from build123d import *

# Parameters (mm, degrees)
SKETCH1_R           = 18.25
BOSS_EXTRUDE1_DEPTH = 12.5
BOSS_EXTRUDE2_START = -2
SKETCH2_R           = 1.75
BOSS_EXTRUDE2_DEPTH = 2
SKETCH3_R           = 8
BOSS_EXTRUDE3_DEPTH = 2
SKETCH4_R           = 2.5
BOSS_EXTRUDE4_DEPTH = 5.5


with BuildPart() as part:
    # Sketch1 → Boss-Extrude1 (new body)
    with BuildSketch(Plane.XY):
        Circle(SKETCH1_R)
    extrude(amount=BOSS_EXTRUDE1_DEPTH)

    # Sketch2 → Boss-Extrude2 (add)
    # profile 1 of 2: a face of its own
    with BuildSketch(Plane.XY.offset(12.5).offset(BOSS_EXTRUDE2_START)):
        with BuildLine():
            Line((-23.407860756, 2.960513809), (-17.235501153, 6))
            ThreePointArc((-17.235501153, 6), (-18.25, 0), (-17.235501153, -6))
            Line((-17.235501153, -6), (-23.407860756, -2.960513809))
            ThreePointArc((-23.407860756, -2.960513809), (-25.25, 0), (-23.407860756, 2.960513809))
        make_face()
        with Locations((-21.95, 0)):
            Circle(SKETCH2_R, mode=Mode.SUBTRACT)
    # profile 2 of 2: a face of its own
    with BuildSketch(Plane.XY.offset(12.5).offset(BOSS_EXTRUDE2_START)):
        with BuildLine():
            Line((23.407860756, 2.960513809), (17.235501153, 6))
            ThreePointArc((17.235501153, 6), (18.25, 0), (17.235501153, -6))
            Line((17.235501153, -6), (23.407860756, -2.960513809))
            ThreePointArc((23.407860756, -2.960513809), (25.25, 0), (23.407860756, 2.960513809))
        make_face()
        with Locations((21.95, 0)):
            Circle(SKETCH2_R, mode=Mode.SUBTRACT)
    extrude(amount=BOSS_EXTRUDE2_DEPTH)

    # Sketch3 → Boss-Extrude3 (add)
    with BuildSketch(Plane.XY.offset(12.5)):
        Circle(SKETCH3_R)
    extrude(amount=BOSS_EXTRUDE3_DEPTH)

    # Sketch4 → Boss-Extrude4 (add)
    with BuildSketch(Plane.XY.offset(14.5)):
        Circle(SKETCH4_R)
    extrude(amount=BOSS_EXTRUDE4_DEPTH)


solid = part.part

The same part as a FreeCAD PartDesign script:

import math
import FreeCAD as App
import Part
import Sketcher
from FreeCAD import Vector
Q = App.Units.Quantity

doc = App.newDocument("Part")
body = doc.addObject("PartDesign::Body", "Body")

sketch1 = doc.addObject("Sketcher::SketchObject", "Sketch")
body.addObject(sketch1)
sketch1.AttachmentSupport = (doc.XY_Plane, [""])
sketch1.MapMode = "FlatFace"
sketch1.addGeometry(Part.Circle(Vector(0, 0, 0), Vector(0, 0, 1), 18), False)
sketch1.addConstraint(Sketcher.Constraint("Coincident", 0, 3, -1, 1))
sketch1.addConstraint(Sketcher.Constraint("Diameter", 0, Q("36.5 mm")))
pad1 = doc.addObject("PartDesign::Pad", "Pad")
body.addObject(pad1)
pad1.Profile = sketch1
pad1.Length = 12.5

sketch2 = doc.addObject("Sketcher::SketchObject", "Sketch001")
body.addObject(sketch2)
sketch2.AttachmentSupport = (doc.XY_Plane, [""])
sketch2.MapMode = "FlatFace"
sketch2.AttachmentOffset = App.Placement(Vector(0, 0, 10.5), App.Rotation())
sketch2.addGeometry(Part.LineSegment(Vector(-17.2, 6, 0), Vector(-23.4, 3, 0)), False)
sketch2.addGeometry(Part.ArcOfCircle(Part.Circle(Vector(-22, 0, 0), Vector(0, 0, 1), 3.3), math.radians(116), math.radians(244)), False)
sketch2.addGeometry(Part.LineSegment(Vector(-23.4, -3, 0), Vector(-17.2, -6, 0)), False)
sketch2.addGeometry(Part.ArcOfCircle(Part.Circle(Vector(0, 0, 0), Vector(0, 0, 1), 18.2), math.radians(161), math.radians(199)), False)
sketch2.addGeometry(Part.Circle(Vector(-21.9, 0, 0), Vector(0, 0, 1), 1.8), False)
sketch2.addGeometry(Part.LineSegment(Vector(23.4, 3, 0), Vector(17.2, 6, 0)), False)
sketch2.addGeometry(Part.ArcOfCircle(Part.Circle(Vector(0, 0, 0), Vector(0, 0, 1), 18.2), math.radians(-19), math.radians(19)), False)
sketch2.addGeometry(Part.LineSegment(Vector(17.2, -6, 0), Vector(23.4, -3, 0)), False)
sketch2.addGeometry(Part.ArcOfCircle(Part.Circle(Vector(22, 0, 0), Vector(0, 0, 1), 3.3), math.radians(-64), math.radians(64)), False)
sketch2.addGeometry(Part.Circle(Vector(21.9, 0, 0), Vector(0, 0, 1), 1.8), False)
sketch2.addConstraint(Sketcher.Constraint("Tangent", 0, 2, 1, 1))
sketch2.addConstraint(Sketcher.Constraint("Tangent", 1, 2, 2, 1))
sketch2.addConstraint(Sketcher.Constraint("Coincident", 2, 2, 3, 2))
sketch2.addConstraint(Sketcher.Constraint("Coincident", 3, 1, 0, 1))
sketch2.addConstraint(Sketcher.Constraint("Coincident", 5, 2, 6, 2))
sketch2.addConstraint(Sketcher.Constraint("Coincident", 6, 1, 7, 1))
sketch2.addConstraint(Sketcher.Constraint("Tangent", 7, 2, 8, 1))
sketch2.addConstraint(Sketcher.Constraint("Tangent", 8, 2, 5, 1))
sketch2.addConstraint(Sketcher.Constraint("Coincident", 3, 3, -1, 1))
sketch2.addConstraint(Sketcher.Constraint("Coincident", 6, 3, -1, 1))
sketch2.addConstraint(Sketcher.Constraint("Coincident", 4, 3, 1, 3))
sketch2.addConstraint(Sketcher.Constraint("Coincident", 9, 3, 8, 3))
sketch2.addConstraint(Sketcher.Constraint("Equal", 3, 6))
sketch2.addConstraint(Sketcher.Constraint("Equal", 1, 8))
sketch2.addConstraint(Sketcher.Constraint("Equal", 4, 9))
sketch2.addConstraint(Sketcher.Constraint("Symmetric", 1, 3, 8, 3, -1, 1))
sketch2.addConstraint(Sketcher.Constraint("Symmetric", 1, 2, 7, 2, -2))
sketch2.addConstraint(Sketcher.Constraint("Parallel", 2, 5))
sketch2.addConstraint(Sketcher.Constraint("Parallel", 0, 7))
sketch2.addConstraint(Sketcher.Constraint("Diameter", 4, Q("3.5 mm")))
sketch2.addConstraint(Sketcher.Constraint("Radius", 1, Q("3.3 mm")))
sketch2.addConstraint(Sketcher.Constraint("Radius", 3, Q("18.25 mm")))
sketch2.addConstraint(Sketcher.Constraint("DistanceY", 2, 2, -1, 1, Q("6 mm")))
sketch2.addConstraint(Sketcher.Constraint("DistanceX", 4, 3, 8, 3, Q("43.9 mm")))
pad2 = doc.addObject("PartDesign::Pad", "Pad001")
body.addObject(pad2)
pad2.Profile = sketch2
pad2.Length = 2

sketch3 = doc.addObject("Sketcher::SketchObject", "Sketch002")
body.addObject(sketch3)
sketch3.AttachmentSupport = (doc.XY_Plane, [""])
sketch3.MapMode = "FlatFace"
sketch3.AttachmentOffset = App.Placement(Vector(0, 0, 12.5), App.Rotation())
sketch3.addGeometry(Part.Circle(Vector(0, 0, 0), Vector(0, 0, 1), 8), False)
sketch3.addConstraint(Sketcher.Constraint("Coincident", 0, 3, -1, 1))
sketch3.addConstraint(Sketcher.Constraint("Diameter", 0, Q("16 mm")))
pad3 = doc.addObject("PartDesign::Pad", "Pad002")
body.addObject(pad3)
pad3.Profile = sketch3
pad3.Length = 2

sketch4 = doc.addObject("Sketcher::SketchObject", "Sketch003")
body.addObject(sketch4)
sketch4.AttachmentSupport = (doc.XY_Plane, [""])
sketch4.MapMode = "FlatFace"
sketch4.AttachmentOffset = App.Placement(Vector(0, 0, 14.5), App.Rotation())
sketch4.addGeometry(Part.Circle(Vector(0, 0, 0), Vector(0, 0, 1), 2.5), False)
sketch4.addConstraint(Sketcher.Constraint("Coincident", 0, 3, -1, 1))
sketch4.addConstraint(Sketcher.Constraint("Diameter", 0, Q("5 mm")))
pad4 = doc.addObject("PartDesign::Pad", "Pad003")
body.addObject(pad4)
pad4.Profile = sketch4
pad4.Length = 5.5

doc.recompute()
